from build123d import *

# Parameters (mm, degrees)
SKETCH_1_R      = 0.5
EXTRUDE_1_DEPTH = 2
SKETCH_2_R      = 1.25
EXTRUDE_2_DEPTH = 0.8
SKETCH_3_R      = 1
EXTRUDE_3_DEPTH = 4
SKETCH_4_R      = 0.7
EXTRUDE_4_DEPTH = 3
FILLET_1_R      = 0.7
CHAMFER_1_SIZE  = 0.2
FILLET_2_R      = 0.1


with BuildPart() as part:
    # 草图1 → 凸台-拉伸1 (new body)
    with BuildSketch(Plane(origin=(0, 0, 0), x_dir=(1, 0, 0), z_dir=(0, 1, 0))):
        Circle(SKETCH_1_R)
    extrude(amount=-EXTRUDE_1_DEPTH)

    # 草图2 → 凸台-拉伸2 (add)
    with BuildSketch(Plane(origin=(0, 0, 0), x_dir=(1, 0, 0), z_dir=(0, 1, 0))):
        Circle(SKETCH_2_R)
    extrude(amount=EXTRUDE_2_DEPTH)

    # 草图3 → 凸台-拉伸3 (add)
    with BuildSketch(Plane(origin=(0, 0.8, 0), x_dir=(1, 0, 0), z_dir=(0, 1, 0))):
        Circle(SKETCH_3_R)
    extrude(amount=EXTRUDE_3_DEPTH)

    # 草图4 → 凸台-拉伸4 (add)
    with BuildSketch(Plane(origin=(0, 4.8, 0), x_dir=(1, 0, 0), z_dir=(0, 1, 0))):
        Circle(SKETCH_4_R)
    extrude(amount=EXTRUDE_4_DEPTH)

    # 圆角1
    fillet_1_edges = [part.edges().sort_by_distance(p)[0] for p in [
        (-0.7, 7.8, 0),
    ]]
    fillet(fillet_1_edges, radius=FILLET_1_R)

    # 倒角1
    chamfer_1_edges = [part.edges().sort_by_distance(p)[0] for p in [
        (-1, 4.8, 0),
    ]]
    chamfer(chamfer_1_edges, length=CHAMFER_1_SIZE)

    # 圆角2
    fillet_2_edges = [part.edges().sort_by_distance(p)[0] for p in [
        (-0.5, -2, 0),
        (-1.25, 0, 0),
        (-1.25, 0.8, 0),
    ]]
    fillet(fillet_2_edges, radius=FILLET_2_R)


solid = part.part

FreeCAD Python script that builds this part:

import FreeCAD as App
import Part
import Sketcher
from FreeCAD import Vector


def edges_at(feature, points):
    """Names of the edges that pass closest to the given points."""
    edges = feature.Shape.Edges
    near = lambda p: min(range(len(edges)), key=lambda i: edges[i].distToShape(Part.Vertex(*p))[0])
    return sorted({f"Edge{near(p) + 1}" for p in points})

doc = App.newDocument("Part")
body = doc.addObject("PartDesign::Body", "Body")

# Sketch on XZ plane
sketch1 = doc.addObject("Sketcher::SketchObject", "Sketch")
body.addObject(sketch1)
sketch1.AttachmentSupport = (doc.XZ_Plane, [""])
sketch1.MapMode = "FlatFace"
sketch1.addGeometry(Part.Circle(Vector(0, 0, 0), Vector(0, 0, 1), 0.5), False)
sketch1.addConstraint(Sketcher.Constraint("Coincident", 0, 3, -1, 1))
sketch1.addConstraint(Sketcher.Constraint("Diameter", 0, 1.0))
pad1 = doc.addObject("PartDesign::Pad", "Pad")
body.addObject(pad1)
pad1.Profile = sketch1
pad1.Length = 2

# Sketch on XZ plane
sketch2 = doc.addObject("Sketcher::SketchObject", "Sketch001")
body.addObject(sketch2)
sketch2.AttachmentSupport = (doc.XZ_Plane, [""])
sketch2.MapMode = "FlatFace"
sketch2.addGeometry(Part.Circle(Vector(0, 0, 0), Vector(0, 0, 1), 1.2), False)
sketch2.addConstraint(Sketcher.Constraint("Coincident", 0, 3, -1, 1))
sketch2.addConstraint(Sketcher.Constraint("Diameter", 0, 2.5))
pad2 = doc.addObject("PartDesign::Pad", "Pad001")
body.addObject(pad2)
pad2.Profile = sketch2
pad2.Length = 0.8
pad2.Reversed = True

# Sketch on XZ plane
sketch3 = doc.addObject("Sketcher::SketchObject", "Sketch002")
body.addObject(sketch3)
sketch3.AttachmentSupport = (doc.XZ_Plane, [""])
sketch3.MapMode = "FlatFace"
sketch3.AttachmentOffset = App.Placement(Vector(0, 0, -0.8), App.Rotation())
sketch3.addGeometry(Part.Circle(Vector(0, 0, 0), Vector(0, 0, 1), 1), False)
sketch3.addConstraint(Sketcher.Constraint("Coincident", 0, 3, -1, 1))
sketch3.addConstraint(Sketcher.Constraint("Diameter", 0, 2.0))
pad3 = doc.addObject("PartDesign::Pad", "Pad002")
body.addObject(pad3)
pad3.Profile = sketch3
pad3.Length = 4
pad3.Reversed = True

# Sketch on XZ plane
sketch4 = doc.addObject("Sketcher::SketchObject", "Sketch003")
body.addObject(sketch4)
sketch4.AttachmentSupport = (doc.XZ_Plane, [""])
sketch4.MapMode = "FlatFace"
sketch4.AttachmentOffset = App.Placement(Vector(0, 0, -4.8), App.Rotation())
sketch4.addGeometry(Part.Circle(Vector(0, 0, 0), Vector(0, 0, 1), 0.7), False)
sketch4.addConstraint(Sketcher.Constraint("Coincident", 0, 3, -1, 1))
sketch4.addConstraint(Sketcher.Constraint("Diameter", 0, 1.4))
pad4 = doc.addObject("PartDesign::Pad", "Pad003")
body.addObject(pad4)
pad4.Profile = sketch4
pad4.Length = 3
pad4.Reversed = True
doc.recompute()

fillet = doc.addObject("PartDesign::Fillet", "Fillet")
body.addObject(fillet)
fillet.Base = (pad4, edges_at(pad4, [(-0.7, 7.8, 0)]))
fillet.Radius = 0.7
doc.recompute()

chamfer = doc.addObject("PartDesign::Chamfer", "Chamfer")
body.addObject(chamfer)
chamfer.Base = (fillet, edges_at(fillet, [(-1, 4.8, 0)]))
chamfer.Size = 0.2
doc.recompute()

fillet2 = doc.addObject("PartDesign::Fillet", "Fillet001")
body.addObject(fillet2)
fillet2.Base = (chamfer, edges_at(chamfer, [(-0.5, -2, 0), (-1.25, 0, 0), (-1.25, 0.8, 0)]))
fillet2.Radius = 0.1

doc.recompute()
